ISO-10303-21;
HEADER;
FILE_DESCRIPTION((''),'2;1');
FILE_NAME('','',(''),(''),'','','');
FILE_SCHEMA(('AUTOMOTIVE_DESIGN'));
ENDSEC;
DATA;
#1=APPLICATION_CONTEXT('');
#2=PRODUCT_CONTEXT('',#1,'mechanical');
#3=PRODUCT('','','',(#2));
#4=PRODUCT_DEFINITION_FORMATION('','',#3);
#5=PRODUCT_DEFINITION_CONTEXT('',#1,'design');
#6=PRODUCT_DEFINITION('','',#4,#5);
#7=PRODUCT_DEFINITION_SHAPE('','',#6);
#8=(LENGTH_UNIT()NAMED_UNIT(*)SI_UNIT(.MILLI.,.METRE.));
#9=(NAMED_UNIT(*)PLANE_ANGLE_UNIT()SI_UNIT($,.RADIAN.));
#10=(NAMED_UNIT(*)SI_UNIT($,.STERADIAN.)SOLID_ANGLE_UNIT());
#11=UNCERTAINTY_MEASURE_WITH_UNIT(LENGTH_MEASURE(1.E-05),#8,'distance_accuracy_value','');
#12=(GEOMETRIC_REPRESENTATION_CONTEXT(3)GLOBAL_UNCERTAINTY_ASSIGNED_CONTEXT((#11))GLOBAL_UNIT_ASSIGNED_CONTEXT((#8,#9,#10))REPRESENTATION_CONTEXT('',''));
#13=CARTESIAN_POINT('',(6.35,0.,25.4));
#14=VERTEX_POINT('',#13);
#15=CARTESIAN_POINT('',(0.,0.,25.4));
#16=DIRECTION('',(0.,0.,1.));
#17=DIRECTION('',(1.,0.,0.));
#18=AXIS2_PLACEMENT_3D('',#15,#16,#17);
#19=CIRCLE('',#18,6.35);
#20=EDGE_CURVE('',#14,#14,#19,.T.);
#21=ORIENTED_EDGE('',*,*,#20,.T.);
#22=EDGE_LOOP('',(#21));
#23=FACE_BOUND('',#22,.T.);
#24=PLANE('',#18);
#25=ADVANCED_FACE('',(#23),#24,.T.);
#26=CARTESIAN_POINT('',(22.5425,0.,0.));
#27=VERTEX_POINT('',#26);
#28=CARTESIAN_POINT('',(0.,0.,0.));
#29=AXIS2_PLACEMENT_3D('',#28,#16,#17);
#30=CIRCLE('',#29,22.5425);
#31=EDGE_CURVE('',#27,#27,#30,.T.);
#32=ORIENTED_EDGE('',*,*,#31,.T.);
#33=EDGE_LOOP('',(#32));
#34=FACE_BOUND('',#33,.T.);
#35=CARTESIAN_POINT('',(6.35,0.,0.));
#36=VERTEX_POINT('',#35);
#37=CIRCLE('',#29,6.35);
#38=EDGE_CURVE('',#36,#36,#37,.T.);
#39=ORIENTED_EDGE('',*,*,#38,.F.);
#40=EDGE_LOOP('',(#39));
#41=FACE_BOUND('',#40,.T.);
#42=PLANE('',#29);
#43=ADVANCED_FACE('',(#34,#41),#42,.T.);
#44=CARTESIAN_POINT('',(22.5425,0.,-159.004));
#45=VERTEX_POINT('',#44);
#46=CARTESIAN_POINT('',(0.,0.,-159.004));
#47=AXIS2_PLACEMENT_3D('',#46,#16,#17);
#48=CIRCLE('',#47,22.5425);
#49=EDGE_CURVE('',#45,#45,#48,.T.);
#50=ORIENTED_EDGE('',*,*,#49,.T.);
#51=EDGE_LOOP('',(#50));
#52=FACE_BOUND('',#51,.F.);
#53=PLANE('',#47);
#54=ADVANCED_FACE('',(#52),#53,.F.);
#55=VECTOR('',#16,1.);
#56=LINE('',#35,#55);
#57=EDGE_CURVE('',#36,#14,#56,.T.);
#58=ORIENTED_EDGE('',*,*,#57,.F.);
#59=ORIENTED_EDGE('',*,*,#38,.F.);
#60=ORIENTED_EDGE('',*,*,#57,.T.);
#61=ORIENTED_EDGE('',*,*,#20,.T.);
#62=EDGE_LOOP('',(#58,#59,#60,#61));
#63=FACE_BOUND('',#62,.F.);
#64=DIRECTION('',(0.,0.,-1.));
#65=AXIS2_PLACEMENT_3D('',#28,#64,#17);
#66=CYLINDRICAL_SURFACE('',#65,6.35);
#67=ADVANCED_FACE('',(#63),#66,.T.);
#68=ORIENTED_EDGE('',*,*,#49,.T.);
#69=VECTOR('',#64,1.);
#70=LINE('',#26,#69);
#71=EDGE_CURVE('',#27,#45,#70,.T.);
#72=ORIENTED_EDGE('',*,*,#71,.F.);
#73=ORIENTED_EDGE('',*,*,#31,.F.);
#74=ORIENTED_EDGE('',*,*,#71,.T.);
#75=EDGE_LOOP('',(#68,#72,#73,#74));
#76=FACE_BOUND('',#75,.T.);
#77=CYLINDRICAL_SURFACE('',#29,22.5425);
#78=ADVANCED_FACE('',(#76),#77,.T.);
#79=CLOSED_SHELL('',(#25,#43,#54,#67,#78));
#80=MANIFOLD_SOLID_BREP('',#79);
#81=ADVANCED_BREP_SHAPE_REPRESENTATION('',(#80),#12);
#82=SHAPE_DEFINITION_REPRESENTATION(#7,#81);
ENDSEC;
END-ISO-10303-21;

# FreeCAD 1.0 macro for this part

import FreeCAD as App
import Part
import Sketcher

V = App.Vector
Q = App.Units.Quantity

doc = App.newDocument("Part")
params = doc.addObject("Spreadsheet::Sheet", "Params")
for row, (alias, value) in enumerate([
    ("sketch1_diameter", "1.775 in"),
    ("pad1_length", "6.26 in"),
    ("sketch2_diameter", "0.5 in"),
    ("pad2_length", "1 in"),
], start=1):
    params.set(f"A{row}", alias)
    params.set(f"B{row}", "=" + value)
    params.setAlias(f"B{row}", alias)

body = doc.addObject("PartDesign::Body", "Body")

sketch1 = doc.addObject("Sketcher::SketchObject", "Sketch")
body.addObject(sketch1)
sketch1.AttachmentSupport = (doc.XY_Plane, [""])
sketch1.MapMode = "FlatFace"
sketch1.addGeometry(Part.Circle(V(0, 0, 0), V(0, 0, 1), 23), False)
sketch1.addConstraint([
    Sketcher.Constraint("Coincident", 0, 3, -1, 1),
    Sketcher.Constraint("Diameter", 0, Q("1.775 in")),
])
sketch1.setExpression("Constraints[1]", "Params.sketch1_diameter")
pad1 = doc.addObject("PartDesign::Pad", "Pad")
body.addObject(pad1)
pad1.Profile = sketch1
pad1.setExpression("Length", "Params.pad1_length")
pad1.Reversed = True

sketch2 = doc.addObject("Sketcher::SketchObject", "Sketch001")
body.addObject(sketch2)
sketch2.AttachmentSupport = (doc.XY_Plane, [""])
sketch2.MapMode = "FlatFace"
sketch2.addGeometry(Part.Circle(V(0, 0, 0), V(0, 0, 1), 6), False)
sketch2.addConstraint([
    Sketcher.Constraint("Coincident", 0, 3, -1, 1),
    Sketcher.Constraint("Diameter", 0, Q("0.5 in")),
])
sketch2.setExpression("Constraints[1]", "Params.sketch2_diameter")
pad2 = doc.addObject("PartDesign::Pad", "Pad001")
body.addObject(pad2)
pad2.Profile = sketch2
pad2.setExpression("Length", "Params.pad2_length")

doc.recompute()
